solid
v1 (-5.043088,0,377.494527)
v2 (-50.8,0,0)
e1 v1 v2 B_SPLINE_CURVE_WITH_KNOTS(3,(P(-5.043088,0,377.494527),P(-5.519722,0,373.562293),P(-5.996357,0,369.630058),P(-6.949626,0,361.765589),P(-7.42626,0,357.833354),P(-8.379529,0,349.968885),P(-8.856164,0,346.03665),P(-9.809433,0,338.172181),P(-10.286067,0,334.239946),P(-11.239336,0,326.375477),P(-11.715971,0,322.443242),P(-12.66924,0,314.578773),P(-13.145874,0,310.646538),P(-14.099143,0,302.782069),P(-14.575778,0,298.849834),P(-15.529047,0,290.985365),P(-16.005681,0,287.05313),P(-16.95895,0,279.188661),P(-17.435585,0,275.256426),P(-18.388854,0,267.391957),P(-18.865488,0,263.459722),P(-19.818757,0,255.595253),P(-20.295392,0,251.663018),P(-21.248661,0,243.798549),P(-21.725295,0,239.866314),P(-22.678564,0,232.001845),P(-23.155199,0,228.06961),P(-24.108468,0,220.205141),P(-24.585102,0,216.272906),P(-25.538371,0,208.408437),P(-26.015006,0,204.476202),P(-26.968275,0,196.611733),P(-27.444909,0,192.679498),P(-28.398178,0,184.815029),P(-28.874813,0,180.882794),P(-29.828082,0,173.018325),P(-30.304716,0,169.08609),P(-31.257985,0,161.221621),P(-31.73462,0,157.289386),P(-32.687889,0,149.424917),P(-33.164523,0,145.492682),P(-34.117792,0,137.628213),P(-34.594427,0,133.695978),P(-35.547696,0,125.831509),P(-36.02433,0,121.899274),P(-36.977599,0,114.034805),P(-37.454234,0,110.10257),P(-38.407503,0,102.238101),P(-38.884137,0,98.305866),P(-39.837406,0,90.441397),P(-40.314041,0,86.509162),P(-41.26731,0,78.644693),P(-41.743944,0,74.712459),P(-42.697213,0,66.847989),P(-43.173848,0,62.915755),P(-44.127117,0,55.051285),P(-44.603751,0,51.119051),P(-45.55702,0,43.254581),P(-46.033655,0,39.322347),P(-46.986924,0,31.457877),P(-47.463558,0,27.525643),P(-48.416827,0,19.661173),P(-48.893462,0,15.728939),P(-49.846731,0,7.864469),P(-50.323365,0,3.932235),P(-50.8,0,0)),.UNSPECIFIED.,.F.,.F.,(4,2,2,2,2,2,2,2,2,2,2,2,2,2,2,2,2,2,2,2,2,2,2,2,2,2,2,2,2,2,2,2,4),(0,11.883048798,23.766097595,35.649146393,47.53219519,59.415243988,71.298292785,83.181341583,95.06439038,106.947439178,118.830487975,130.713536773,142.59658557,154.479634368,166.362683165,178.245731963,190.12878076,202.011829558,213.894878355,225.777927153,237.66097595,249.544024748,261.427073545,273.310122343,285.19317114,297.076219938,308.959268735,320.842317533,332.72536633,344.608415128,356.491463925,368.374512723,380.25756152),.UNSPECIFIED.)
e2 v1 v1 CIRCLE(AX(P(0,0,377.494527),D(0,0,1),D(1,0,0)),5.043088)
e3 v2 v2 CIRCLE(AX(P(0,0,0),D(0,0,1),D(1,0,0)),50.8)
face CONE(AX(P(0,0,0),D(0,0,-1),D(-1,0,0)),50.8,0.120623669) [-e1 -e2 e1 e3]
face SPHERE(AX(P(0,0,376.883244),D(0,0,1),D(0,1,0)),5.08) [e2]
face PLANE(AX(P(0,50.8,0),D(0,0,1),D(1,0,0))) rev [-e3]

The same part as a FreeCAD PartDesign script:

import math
import FreeCAD as App
import Part
import Sketcher

V = App.Vector
Q = App.Units.Quantity

doc = App.newDocument("Part")
body = doc.addObject("PartDesign::Body", "Body")

# Sketch on YZ plane
sketch1 = body.newObject("Sketcher::SketchObject", "Sketch")
sketch1.AttachmentSupport = (doc.getObject("YZ_Plane"), [""])
sketch1.MapMode = "FlatFace"
sketch1.addGeometry(Part.LineSegment(V(0, 382, 0), V(0, 0, 0)), False)
sketch1.addGeometry(Part.LineSegment(V(0, 0, 0), V(51, 0, 0)), False)
sketch1.addGeometry(Part.LineSegment(V(51, 0, 0), V(5, 377, 0)), False)
sketch1.addGeometry(Part.ArcOfCircle(Part.Circle(V(0, 377, 0), V(0, 0, 1), 5), math.radians(7), math.radians(90)), False)
sketch1.addConstraint(Sketcher.Constraint("Coincident", 0, 2, 1, 1))
sketch1.addConstraint(Sketcher.Constraint("Coincident", 1, 2, 2, 1))
sketch1.addConstraint(Sketcher.Constraint("Tangent", 2, 2, 3, 1))
sketch1.addConstraint(Sketcher.Constraint("Coincident", 3, 2, 0, 1))
sketch1.addConstraint(Sketcher.Constraint("Vertical", 0))
sketch1.addConstraint(Sketcher.Constraint("Horizontal", 1))
sketch1.addConstraint(Sketcher.Constraint("Coincident", 0, 2, -1, 1))
sketch1.addConstraint(Sketcher.Constraint("PointOnObject", 3, 3, -2))
sketch1.addConstraint(Sketcher.Constraint("Radius", 3, Q("0.2 in")))
sketch1.addConstraint(Sketcher.Constraint("DistanceX", 1, 1, 1, 2, Q("2 in")))
sketch1.addConstraint(Sketcher.Constraint("Distance", 2, 380.257562))
revolution = body.newObject("PartDesign::Revolution", "Revolution")
revolution.Profile = sketch1
revolution.ReferenceAxis = (sketch1, ["V_Axis"])
revolution.Angle = 360

doc.recompute()
